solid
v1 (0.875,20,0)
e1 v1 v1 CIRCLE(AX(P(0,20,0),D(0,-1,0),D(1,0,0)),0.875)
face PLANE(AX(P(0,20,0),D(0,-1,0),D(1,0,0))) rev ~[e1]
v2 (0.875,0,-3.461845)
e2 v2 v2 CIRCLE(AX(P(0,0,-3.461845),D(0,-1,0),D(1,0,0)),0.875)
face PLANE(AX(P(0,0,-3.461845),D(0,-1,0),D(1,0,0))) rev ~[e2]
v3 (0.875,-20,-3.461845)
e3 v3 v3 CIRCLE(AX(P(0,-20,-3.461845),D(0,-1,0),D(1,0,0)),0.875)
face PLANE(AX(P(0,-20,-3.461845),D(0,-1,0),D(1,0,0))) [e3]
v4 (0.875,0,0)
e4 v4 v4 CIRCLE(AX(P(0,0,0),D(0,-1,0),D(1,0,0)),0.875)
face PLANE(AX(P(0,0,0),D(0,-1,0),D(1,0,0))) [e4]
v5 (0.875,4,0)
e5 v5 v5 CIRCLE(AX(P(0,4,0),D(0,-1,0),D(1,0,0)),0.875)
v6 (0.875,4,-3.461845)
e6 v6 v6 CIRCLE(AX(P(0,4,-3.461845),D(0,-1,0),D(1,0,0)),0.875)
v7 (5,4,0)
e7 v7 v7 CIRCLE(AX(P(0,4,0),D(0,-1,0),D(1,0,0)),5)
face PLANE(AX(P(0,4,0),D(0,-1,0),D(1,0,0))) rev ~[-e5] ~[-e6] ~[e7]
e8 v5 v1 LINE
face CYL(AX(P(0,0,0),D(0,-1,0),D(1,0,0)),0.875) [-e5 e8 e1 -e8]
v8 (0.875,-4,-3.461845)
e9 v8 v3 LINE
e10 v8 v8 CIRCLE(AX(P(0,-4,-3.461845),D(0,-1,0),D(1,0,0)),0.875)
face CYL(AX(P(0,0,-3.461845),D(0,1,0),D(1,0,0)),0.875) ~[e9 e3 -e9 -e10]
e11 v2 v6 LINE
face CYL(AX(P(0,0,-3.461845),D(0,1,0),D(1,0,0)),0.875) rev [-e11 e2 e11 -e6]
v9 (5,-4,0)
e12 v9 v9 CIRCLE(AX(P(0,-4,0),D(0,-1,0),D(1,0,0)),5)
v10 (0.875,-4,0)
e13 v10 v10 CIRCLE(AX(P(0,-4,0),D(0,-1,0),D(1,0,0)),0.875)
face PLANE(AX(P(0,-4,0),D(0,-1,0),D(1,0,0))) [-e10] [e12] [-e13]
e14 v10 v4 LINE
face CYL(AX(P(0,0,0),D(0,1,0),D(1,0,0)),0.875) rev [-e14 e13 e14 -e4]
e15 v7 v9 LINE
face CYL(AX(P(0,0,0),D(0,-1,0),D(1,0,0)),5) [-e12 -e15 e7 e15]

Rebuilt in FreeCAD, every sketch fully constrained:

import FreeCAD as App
import Part
import Sketcher
Q = App.Units.Quantity

doc = App.newDocument("Part")
params = doc.addObject("Spreadsheet::Sheet", "Params")
for row, (alias, value) in enumerate([
    ("sketch1_diameter", "10 mm"),
    ("sketch1_diameter2", "1.75 mm"),
    ("pad1_length", "8 mm"),
    ("sketch2_diameter", "1.75 mm"),
    ("pad2_length", "20 mm"),
    ("sketch3_diameter", "1.75 mm"),
    ("pad3_length", "20 mm"),
], start=1):
    params.set(f"A{row}", alias)
    params.set(f"B{row}", "=" + value)
    params.setAlias(f"B{row}", alias)

body = doc.addObject("PartDesign::Body", "Body")

sketch1 = body.newObject("Sketcher::SketchObject", "Sketch")
sketch1.AttachmentSupport = (doc.getObject("XZ_Plane"), [""])
sketch1.MapMode = "FlatFace"
sketch1.addGeometry([
    Part.Circle(App.Vector(0, 0, 0), App.Vector(0, 0, 1), 5),
    Part.Circle(App.Vector(0, -3.5, 0), App.Vector(0, 0, 1), 0.9),
    Part.Circle(App.Vector(0, 0, 0), App.Vector(0, 0, 1), 0.9),
], False)
sketch1.addConstraint([
    Sketcher.Constraint("Coincident", 0, 3, -1, 1),
    Sketcher.Constraint("Coincident", 2, 3, -1, 1),
    Sketcher.Constraint("Equal", 1, 2),
    Sketcher.Constraint("PointOnObject", 1, 3, -2),
    Sketcher.Constraint("Diameter", 0, Q("10 mm")),
    Sketcher.Constraint("Diameter", 1, Q("1.75 mm")),
    Sketcher.Constraint("DistanceY", 1, 3, -1, 1, Q("3.461845 mm")),
])
sketch1.setExpression("Constraints[4]", "Params.sketch1_diameter")
sketch1.setExpression("Constraints[5]", "Params.sketch1_diameter2")
pad1 = body.newObject("PartDesign::Pad", "Pad")
pad1.Profile = sketch1
pad1.setExpression("Length", "Params.pad1_length")
pad1.Midplane = True

sketch2 = body.newObject("Sketcher::SketchObject", "Sketch001")
sketch2.AttachmentSupport = (doc.getObject("XZ_Plane"), [""])
sketch2.MapMode = "FlatFace"
sketch2.addGeometry(Part.Circle(App.Vector(0, 0, 0), App.Vector(0, 0, 1), 0.9), False)
sketch2.addConstraint([
    Sketcher.Constraint("Coincident", 0, 3, -1, 1),
    Sketcher.Constraint("Diameter", 0, Q("1.75 mm")),
])
sketch2.setExpression("Constraints[1]", "Params.sketch2_diameter")
pad2 = body.newObject("PartDesign::Pad", "Pad001")
pad2.Profile = sketch2
pad2.setExpression("Length", "Params.pad2_length")
pad2.Reversed = True

sketch3 = body.newObject("Sketcher::SketchObject", "Sketch002")
sketch3.AttachmentSupport = (doc.getObject("XZ_Plane"), [""])
sketch3.MapMode = "FlatFace"
sketch3.addGeometry(Part.Circle(App.Vector(0, -3.5, 0), App.Vector(0, 0, 1), 0.9), False)
sketch3.addConstraint([
    Sketcher.Constraint("PointOnObject", 0, 3, -2),
    Sketcher.Constraint("Diameter", 0, Q("1.75 mm")),
    Sketcher.Constraint("DistanceY", 0, 3, -1, 1, Q("3.461845 mm")),
])
sketch3.setExpression("Constraints[1]", "Params.sketch3_diameter")
pad3 = body.newObject("PartDesign::Pad", "Pad002")
pad3.Profile = sketch3
pad3.setExpression("Length", "Params.pad3_length")

doc.recompute()
